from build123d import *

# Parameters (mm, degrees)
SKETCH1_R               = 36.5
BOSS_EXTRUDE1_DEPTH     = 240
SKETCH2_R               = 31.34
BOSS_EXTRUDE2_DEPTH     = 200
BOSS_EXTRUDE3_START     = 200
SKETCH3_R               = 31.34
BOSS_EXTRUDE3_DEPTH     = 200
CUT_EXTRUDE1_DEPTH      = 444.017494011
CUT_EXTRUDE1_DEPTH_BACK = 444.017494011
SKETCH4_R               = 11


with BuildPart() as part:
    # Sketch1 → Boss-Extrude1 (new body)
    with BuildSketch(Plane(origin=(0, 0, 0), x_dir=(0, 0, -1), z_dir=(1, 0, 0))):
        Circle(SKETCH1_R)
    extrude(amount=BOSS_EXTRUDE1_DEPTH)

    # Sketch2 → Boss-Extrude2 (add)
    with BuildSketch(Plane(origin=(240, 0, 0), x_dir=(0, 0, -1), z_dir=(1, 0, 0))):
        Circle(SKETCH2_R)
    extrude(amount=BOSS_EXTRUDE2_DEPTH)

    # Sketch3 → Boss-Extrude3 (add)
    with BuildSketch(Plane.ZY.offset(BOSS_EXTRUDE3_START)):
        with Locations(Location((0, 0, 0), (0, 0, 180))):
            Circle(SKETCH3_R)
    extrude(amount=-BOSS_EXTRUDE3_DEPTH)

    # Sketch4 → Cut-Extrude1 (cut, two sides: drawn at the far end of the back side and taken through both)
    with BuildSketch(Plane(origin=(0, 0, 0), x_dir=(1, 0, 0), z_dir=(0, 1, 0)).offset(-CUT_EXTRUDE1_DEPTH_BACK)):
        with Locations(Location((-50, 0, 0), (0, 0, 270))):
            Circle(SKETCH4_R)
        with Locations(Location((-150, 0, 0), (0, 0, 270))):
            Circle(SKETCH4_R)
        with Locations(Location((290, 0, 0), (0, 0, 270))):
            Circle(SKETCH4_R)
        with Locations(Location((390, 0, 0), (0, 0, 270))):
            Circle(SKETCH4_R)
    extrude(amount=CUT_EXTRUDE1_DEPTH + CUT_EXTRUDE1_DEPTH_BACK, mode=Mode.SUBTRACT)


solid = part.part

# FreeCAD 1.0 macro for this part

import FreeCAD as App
import Part
import Sketcher

V = App.Vector
Q = App.Units.Quantity

doc = App.newDocument("Part")
body = doc.addObject("PartDesign::Body", "Body")

# Sketch on YZ plane
sketch1 = body.newObject("Sketcher::SketchObject", "Sketch")
sketch1.AttachmentSupport = (doc.getObject("YZ_Plane"), [""])
sketch1.MapMode = "FlatFace"
sketch1.addGeometry(Part.Circle(V(0, 0, 0), V(0, 0, 1), 36), False)
sketch1.addConstraint([
    Sketcher.Constraint("Coincident", 0, 3, -1, 1),
    Sketcher.Constraint("Diameter", 0, Q("73 mm")),
])
pad1 = body.newObject("PartDesign::Pad", "Pad")
pad1.Profile = sketch1
pad1.Length = 240

# Sketch on YZ plane
sketch2 = body.newObject("Sketcher::SketchObject", "Sketch001")
sketch2.AttachmentSupport = (doc.getObject("YZ_Plane"), [""])
sketch2.MapMode = "FlatFace"
sketch2.AttachmentOffset = App.Placement(V(0, 0, 240), App.Rotation())
sketch2.addGeometry(Part.Circle(V(0, 0, 0), V(0, 0, 1), 31), False)
sketch2.addConstraint([
    Sketcher.Constraint("Coincident", 0, 3, -1, 1),
    Sketcher.Constraint("Diameter", 0, Q("62.68 mm")),
])
pad2 = body.newObject("PartDesign::Pad", "Pad001")
pad2.Profile = sketch2
pad2.Length = 200

# Sketch on YZ plane
sketch3 = body.newObject("Sketcher::SketchObject", "Sketch002")
sketch3.AttachmentSupport = (doc.getObject("YZ_Plane"), [""])
sketch3.MapMode = "FlatFace"
sketch3.AttachmentOffset = App.Placement(V(0, 0, -200), App.Rotation())
sketch3.addGeometry(Part.Circle(V(0, 0, 0), V(0, 0, 1), 31), False)
sketch3.addConstraint([
    Sketcher.Constraint("Coincident", 0, 3, -1, 1),
    Sketcher.Constraint("Diameter", 0, Q("62.68 mm")),
])
pad3 = body.newObject("PartDesign::Pad", "Pad002")
pad3.Profile = sketch3
pad3.Length = 200

# Sketch on XZ plane
sketch4 = body.newObject("Sketcher::SketchObject", "Sketch003")
sketch4.AttachmentSupport = (doc.getObject("XZ_Plane"), [""])
sketch4.MapMode = "FlatFace"
sketch4.addGeometry([
    Part.Circle(V(-50, 0, 0), V(0, 0, 1), 11),
    Part.Circle(V(-150, 0, 0), V(0, 0, 1), 11),
    Part.Circle(V(290, 0, 0), V(0, 0, 1), 11),
    Part.Circle(V(390, 0, 0), V(0, 0, 1), 11),
], False)
sketch4.addConstraint([
    Sketcher.Constraint("Equal", 0, 1),
    Sketcher.Constraint("Equal", 1, 2),
    Sketcher.Constraint("Equal", 2, 3),
    Sketcher.Constraint("PointOnObject", 0, 3, -1),
    Sketcher.Constraint("PointOnObject", 1, 3, -1),
    Sketcher.Constraint("PointOnObject", 2, 3, -1),
    Sketcher.Constraint("PointOnObject", 3, 3, -1),
    Sketcher.Constraint("Diameter", 0, Q("22 mm")),
    Sketcher.Constraint("DistanceX", 0, 3, -1, 1, Q("50 mm")),
    Sketcher.Constraint("DistanceX", 1, 3, -1, 1, Q("150 mm")),
    Sketcher.Constraint("DistanceX", -1, 1, 2, 3, Q("290 mm")),
    Sketcher.Constraint("DistanceX", -1, 1, 3, 3, Q("390 mm")),
])
pocket1 = body.newObject("PartDesign::Pocket", "Pocket")
pocket1.Profile = sketch4
pocket1.Type = "ThroughAll"
pocket1.Midplane = True

doc.recompute()
